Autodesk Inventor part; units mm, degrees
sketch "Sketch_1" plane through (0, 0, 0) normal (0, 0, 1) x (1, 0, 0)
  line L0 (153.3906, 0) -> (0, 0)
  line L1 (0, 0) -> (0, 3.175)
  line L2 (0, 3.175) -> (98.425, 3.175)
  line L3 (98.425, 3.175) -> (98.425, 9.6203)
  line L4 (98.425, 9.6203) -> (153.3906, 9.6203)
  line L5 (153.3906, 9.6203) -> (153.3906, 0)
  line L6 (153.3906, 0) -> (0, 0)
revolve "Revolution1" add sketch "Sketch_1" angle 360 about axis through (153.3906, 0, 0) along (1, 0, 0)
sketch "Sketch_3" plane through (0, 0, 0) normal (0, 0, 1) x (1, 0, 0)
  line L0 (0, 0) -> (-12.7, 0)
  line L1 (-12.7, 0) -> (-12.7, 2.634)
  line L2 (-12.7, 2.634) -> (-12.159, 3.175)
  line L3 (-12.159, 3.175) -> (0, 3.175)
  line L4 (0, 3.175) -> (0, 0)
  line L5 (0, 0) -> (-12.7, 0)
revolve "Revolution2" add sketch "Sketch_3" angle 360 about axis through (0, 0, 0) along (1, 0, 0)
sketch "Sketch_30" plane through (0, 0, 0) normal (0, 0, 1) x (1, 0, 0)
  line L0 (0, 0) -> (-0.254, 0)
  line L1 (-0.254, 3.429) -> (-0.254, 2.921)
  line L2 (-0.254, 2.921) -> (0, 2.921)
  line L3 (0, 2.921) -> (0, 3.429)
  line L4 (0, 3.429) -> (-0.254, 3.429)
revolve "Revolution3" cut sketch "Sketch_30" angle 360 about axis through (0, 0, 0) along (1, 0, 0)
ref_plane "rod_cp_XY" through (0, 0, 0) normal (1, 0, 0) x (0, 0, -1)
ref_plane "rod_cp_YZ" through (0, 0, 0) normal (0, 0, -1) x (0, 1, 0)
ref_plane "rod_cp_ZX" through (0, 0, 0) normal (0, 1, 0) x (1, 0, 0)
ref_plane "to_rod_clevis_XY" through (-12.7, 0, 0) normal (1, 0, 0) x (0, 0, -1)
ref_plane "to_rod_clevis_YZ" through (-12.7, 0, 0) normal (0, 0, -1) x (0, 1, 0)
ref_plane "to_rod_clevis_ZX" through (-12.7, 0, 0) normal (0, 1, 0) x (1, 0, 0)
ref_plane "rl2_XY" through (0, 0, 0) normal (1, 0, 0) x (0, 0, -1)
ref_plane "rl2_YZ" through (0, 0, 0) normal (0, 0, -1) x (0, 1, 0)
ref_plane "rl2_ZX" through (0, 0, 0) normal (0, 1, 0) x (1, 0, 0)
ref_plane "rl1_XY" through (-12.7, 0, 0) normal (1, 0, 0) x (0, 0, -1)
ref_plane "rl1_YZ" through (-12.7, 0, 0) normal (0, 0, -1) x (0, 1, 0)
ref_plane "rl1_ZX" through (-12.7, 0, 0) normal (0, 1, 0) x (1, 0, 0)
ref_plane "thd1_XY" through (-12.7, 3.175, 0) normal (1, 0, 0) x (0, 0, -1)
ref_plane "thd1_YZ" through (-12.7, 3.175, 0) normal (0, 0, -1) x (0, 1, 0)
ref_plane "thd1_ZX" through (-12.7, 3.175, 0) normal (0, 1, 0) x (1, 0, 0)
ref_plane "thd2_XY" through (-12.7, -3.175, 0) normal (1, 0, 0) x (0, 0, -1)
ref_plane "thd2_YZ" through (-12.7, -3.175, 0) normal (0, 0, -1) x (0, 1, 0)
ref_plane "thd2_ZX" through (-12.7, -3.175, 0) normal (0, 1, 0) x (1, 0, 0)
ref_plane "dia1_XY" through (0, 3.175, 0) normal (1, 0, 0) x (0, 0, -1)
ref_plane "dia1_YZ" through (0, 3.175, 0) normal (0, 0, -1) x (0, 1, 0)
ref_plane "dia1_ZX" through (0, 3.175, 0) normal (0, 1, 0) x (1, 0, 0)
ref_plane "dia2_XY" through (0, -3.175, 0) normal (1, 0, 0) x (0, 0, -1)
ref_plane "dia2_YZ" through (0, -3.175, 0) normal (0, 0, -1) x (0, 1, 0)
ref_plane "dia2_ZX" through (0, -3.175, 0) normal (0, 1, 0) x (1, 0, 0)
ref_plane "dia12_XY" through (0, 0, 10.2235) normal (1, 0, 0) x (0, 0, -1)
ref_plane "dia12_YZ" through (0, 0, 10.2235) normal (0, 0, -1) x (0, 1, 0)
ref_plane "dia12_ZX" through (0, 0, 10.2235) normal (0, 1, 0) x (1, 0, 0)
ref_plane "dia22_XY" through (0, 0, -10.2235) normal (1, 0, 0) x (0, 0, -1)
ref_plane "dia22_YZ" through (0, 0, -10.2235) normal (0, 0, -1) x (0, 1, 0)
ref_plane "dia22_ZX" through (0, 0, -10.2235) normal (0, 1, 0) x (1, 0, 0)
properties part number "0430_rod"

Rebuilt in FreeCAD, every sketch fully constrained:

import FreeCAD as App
import Part
import Sketcher

V = App.Vector
Q = App.Units.Quantity

doc = App.newDocument("Part")
body = doc.addObject("PartDesign::Body", "Body")

# Sketch on XY plane
sketch1 = body.newObject("Sketcher::SketchObject", "Sketch")
sketch1.AttachmentSupport = (doc.getObject("XY_Plane"), [""])
sketch1.MapMode = "FlatFace"
sketch1.addGeometry(Part.LineSegment(V(0, 0, 0), V(153.4, 0, 0)), False)
sketch1.addGeometry(Part.LineSegment(V(153.4, 0, 0), V(153.4, 9.6, 0)), False)
sketch1.addGeometry(Part.LineSegment(V(153.4, 9.6, 0), V(98.4, 9.6, 0)), False)
sketch1.addGeometry(Part.LineSegment(V(98.4, 9.6, 0), V(98.4, 3.2, 0)), False)
sketch1.addGeometry(Part.LineSegment(V(98.4, 3.2, 0), V(0, 3.2, 0)), False)
sketch1.addGeometry(Part.LineSegment(V(0, 3.2, 0), V(0, 0, 0)), False)
sketch1.addConstraint(Sketcher.Constraint("Coincident", 0, 2, 1, 1))
sketch1.addConstraint(Sketcher.Constraint("Coincident", 1, 2, 2, 1))
sketch1.addConstraint(Sketcher.Constraint("Coincident", 2, 2, 3, 1))
sketch1.addConstraint(Sketcher.Constraint("Coincident", 3, 2, 4, 1))
sketch1.addConstraint(Sketcher.Constraint("Coincident", 4, 2, 5, 1))
sketch1.addConstraint(Sketcher.Constraint("Coincident", 5, 2, 0, 1))
sketch1.addConstraint(Sketcher.Constraint("Horizontal", 0))
sketch1.addConstraint(Sketcher.Constraint("Vertical", 1))
sketch1.addConstraint(Sketcher.Constraint("Horizontal", 2))
sketch1.addConstraint(Sketcher.Constraint("Vertical", 3))
sketch1.addConstraint(Sketcher.Constraint("Horizontal", 4))
sketch1.addConstraint(Sketcher.Constraint("Vertical", 5))
sketch1.addConstraint(Sketcher.Constraint("Coincident", 5, 2, -1, 1))
sketch1.addConstraint(Sketcher.Constraint("DistanceX", 0, 1, 0, 2, Q("6.039 in")))
sketch1.addConstraint(Sketcher.Constraint("DistanceX", 2, 2, 2, 1, Q("2.164 in")))
sketch1.addConstraint(Sketcher.Constraint("DistanceY", 5, 2, 5, 1, Q("0.125 in")))
sketch1.addConstraint(Sketcher.Constraint("DistanceY", 1, 1, 1, 2, Q("9.6203 mm")))
revolution = body.newObject("PartDesign::Revolution", "Revolution")
revolution.Profile = sketch1
revolution.ReferenceAxis = (sketch1, ["H_Axis"])
revolution.Angle = 360

# Sketch on XY plane
sketch2 = body.newObject("Sketcher::SketchObject", "Sketch001")
sketch2.AttachmentSupport = (doc.getObject("XY_Plane"), [""])
sketch2.MapMode = "FlatFace"
sketch2.addGeometry(Part.LineSegment(V(-12.7, 0, 0), V(0, 0, 0)), False)
sketch2.addGeometry(Part.LineSegment(V(0, 0, 0), V(0, 3.2, 0)), False)
sketch2.addGeometry(Part.LineSegment(V(0, 3.2, 0), V(-12.2, 3.2, 0)), False)
sketch2.addGeometry(Part.LineSegment(V(-12.2, 3.2, 0), V(-12.7, 2.6, 0)), False)
sketch2.addGeometry(Part.LineSegment(V(-12.7, 2.6, 0), V(-12.7, 0, 0)), False)
sketch2.addConstraint(Sketcher.Constraint("Coincident", 0, 2, 1, 1))
sketch2.addConstraint(Sketcher.Constraint("Coincident", 1, 2, 2, 1))
sketch2.addConstraint(Sketcher.Constraint("Coincident", 2, 2, 3, 1))
sketch2.addConstraint(Sketcher.Constraint("Coincident", 3, 2, 4, 1))
sketch2.addConstraint(Sketcher.Constraint("Coincident", 4, 2, 0, 1))
sketch2.addConstraint(Sketcher.Constraint("Horizontal", 0))
sketch2.addConstraint(Sketcher.Constraint("Vertical", 1))
sketch2.addConstraint(Sketcher.Constraint("Horizontal", 2))
sketch2.addConstraint(Sketcher.Constraint("Vertical", 4))
sketch2.addConstraint(Sketcher.Constraint("Coincident", 0, 2, -1, 1))
sketch2.addConstraint(Sketcher.Constraint("DistanceX", 0, 1, 0, 2, Q("0.5 in")))
sketch2.addConstraint(Sketcher.Constraint("Angle", 3, Q("-135 deg")))
sketch2.addConstraint(Sketcher.Constraint("DistanceY", 1, 1, 1, 2, Q("0.125 in")))
sketch2.addConstraint(Sketcher.Constraint("DistanceX", 2, 2, 2, 1, Q("0.4787 in")))
revolution2 = body.newObject("PartDesign::Revolution", "Revolution001")
revolution2.Profile = sketch2
revolution2.ReferenceAxis = (sketch2, ["H_Axis"])
revolution2.Angle = 360

# Sketch on XY plane
sketch3 = body.newObject("Sketcher::SketchObject", "Sketch002")
sketch3.AttachmentSupport = (doc.getObject("XY_Plane"), [""])
sketch3.MapMode = "FlatFace"
sketch3.addGeometry(Part.LineSegment(V(0, 3.43, 0), V(-0.25, 3.43, 0)), False)
sketch3.addGeometry(Part.LineSegment(V(-0.25, 3.43, 0), V(-0.25, 2.92, 0)), False)
sketch3.addGeometry(Part.LineSegment(V(-0.25, 2.92, 0), V(0, 2.92, 0)), False)
sketch3.addGeometry(Part.LineSegment(V(0, 2.92, 0), V(0, 3.43, 0)), False)
sketch3.addConstraint(Sketcher.Constraint("Coincident", 0, 2, 1, 1))
sketch3.addConstraint(Sketcher.Constraint("Coincident", 1, 2, 2, 1))
sketch3.addConstraint(Sketcher.Constraint("Coincident", 2, 2, 3, 1))
sketch3.addConstraint(Sketcher.Constraint("Coincident", 3, 2, 0, 1))
sketch3.addConstraint(Sketcher.Constraint("Horizontal", 0))
sketch3.addConstraint(Sketcher.Constraint("Vertical", 1))
sketch3.addConstraint(Sketcher.Constraint("Horizontal", 2))
sketch3.addConstraint(Sketcher.Constraint("Vertical", 3))
sketch3.addConstraint(Sketcher.Constraint("PointOnObject", 2, 2, -2))
sketch3.addConstraint(Sketcher.Constraint("DistanceX", 0, 2, 0, 1, Q("0.01 in")))
sketch3.addConstraint(Sketcher.Constraint("DistanceY", 1, 2, 1, 1, Q("0.02 in")))
sketch3.addConstraint(Sketcher.Constraint("DistanceY", -1, 1, 0, 2, Q("0.135 in")))
groove = body.newObject("PartDesign::Groove", "Groove")
groove.Profile = sketch3
groove.ReferenceAxis = (sketch3, ["H_Axis"])
groove.Angle = 360

doc.recompute()
